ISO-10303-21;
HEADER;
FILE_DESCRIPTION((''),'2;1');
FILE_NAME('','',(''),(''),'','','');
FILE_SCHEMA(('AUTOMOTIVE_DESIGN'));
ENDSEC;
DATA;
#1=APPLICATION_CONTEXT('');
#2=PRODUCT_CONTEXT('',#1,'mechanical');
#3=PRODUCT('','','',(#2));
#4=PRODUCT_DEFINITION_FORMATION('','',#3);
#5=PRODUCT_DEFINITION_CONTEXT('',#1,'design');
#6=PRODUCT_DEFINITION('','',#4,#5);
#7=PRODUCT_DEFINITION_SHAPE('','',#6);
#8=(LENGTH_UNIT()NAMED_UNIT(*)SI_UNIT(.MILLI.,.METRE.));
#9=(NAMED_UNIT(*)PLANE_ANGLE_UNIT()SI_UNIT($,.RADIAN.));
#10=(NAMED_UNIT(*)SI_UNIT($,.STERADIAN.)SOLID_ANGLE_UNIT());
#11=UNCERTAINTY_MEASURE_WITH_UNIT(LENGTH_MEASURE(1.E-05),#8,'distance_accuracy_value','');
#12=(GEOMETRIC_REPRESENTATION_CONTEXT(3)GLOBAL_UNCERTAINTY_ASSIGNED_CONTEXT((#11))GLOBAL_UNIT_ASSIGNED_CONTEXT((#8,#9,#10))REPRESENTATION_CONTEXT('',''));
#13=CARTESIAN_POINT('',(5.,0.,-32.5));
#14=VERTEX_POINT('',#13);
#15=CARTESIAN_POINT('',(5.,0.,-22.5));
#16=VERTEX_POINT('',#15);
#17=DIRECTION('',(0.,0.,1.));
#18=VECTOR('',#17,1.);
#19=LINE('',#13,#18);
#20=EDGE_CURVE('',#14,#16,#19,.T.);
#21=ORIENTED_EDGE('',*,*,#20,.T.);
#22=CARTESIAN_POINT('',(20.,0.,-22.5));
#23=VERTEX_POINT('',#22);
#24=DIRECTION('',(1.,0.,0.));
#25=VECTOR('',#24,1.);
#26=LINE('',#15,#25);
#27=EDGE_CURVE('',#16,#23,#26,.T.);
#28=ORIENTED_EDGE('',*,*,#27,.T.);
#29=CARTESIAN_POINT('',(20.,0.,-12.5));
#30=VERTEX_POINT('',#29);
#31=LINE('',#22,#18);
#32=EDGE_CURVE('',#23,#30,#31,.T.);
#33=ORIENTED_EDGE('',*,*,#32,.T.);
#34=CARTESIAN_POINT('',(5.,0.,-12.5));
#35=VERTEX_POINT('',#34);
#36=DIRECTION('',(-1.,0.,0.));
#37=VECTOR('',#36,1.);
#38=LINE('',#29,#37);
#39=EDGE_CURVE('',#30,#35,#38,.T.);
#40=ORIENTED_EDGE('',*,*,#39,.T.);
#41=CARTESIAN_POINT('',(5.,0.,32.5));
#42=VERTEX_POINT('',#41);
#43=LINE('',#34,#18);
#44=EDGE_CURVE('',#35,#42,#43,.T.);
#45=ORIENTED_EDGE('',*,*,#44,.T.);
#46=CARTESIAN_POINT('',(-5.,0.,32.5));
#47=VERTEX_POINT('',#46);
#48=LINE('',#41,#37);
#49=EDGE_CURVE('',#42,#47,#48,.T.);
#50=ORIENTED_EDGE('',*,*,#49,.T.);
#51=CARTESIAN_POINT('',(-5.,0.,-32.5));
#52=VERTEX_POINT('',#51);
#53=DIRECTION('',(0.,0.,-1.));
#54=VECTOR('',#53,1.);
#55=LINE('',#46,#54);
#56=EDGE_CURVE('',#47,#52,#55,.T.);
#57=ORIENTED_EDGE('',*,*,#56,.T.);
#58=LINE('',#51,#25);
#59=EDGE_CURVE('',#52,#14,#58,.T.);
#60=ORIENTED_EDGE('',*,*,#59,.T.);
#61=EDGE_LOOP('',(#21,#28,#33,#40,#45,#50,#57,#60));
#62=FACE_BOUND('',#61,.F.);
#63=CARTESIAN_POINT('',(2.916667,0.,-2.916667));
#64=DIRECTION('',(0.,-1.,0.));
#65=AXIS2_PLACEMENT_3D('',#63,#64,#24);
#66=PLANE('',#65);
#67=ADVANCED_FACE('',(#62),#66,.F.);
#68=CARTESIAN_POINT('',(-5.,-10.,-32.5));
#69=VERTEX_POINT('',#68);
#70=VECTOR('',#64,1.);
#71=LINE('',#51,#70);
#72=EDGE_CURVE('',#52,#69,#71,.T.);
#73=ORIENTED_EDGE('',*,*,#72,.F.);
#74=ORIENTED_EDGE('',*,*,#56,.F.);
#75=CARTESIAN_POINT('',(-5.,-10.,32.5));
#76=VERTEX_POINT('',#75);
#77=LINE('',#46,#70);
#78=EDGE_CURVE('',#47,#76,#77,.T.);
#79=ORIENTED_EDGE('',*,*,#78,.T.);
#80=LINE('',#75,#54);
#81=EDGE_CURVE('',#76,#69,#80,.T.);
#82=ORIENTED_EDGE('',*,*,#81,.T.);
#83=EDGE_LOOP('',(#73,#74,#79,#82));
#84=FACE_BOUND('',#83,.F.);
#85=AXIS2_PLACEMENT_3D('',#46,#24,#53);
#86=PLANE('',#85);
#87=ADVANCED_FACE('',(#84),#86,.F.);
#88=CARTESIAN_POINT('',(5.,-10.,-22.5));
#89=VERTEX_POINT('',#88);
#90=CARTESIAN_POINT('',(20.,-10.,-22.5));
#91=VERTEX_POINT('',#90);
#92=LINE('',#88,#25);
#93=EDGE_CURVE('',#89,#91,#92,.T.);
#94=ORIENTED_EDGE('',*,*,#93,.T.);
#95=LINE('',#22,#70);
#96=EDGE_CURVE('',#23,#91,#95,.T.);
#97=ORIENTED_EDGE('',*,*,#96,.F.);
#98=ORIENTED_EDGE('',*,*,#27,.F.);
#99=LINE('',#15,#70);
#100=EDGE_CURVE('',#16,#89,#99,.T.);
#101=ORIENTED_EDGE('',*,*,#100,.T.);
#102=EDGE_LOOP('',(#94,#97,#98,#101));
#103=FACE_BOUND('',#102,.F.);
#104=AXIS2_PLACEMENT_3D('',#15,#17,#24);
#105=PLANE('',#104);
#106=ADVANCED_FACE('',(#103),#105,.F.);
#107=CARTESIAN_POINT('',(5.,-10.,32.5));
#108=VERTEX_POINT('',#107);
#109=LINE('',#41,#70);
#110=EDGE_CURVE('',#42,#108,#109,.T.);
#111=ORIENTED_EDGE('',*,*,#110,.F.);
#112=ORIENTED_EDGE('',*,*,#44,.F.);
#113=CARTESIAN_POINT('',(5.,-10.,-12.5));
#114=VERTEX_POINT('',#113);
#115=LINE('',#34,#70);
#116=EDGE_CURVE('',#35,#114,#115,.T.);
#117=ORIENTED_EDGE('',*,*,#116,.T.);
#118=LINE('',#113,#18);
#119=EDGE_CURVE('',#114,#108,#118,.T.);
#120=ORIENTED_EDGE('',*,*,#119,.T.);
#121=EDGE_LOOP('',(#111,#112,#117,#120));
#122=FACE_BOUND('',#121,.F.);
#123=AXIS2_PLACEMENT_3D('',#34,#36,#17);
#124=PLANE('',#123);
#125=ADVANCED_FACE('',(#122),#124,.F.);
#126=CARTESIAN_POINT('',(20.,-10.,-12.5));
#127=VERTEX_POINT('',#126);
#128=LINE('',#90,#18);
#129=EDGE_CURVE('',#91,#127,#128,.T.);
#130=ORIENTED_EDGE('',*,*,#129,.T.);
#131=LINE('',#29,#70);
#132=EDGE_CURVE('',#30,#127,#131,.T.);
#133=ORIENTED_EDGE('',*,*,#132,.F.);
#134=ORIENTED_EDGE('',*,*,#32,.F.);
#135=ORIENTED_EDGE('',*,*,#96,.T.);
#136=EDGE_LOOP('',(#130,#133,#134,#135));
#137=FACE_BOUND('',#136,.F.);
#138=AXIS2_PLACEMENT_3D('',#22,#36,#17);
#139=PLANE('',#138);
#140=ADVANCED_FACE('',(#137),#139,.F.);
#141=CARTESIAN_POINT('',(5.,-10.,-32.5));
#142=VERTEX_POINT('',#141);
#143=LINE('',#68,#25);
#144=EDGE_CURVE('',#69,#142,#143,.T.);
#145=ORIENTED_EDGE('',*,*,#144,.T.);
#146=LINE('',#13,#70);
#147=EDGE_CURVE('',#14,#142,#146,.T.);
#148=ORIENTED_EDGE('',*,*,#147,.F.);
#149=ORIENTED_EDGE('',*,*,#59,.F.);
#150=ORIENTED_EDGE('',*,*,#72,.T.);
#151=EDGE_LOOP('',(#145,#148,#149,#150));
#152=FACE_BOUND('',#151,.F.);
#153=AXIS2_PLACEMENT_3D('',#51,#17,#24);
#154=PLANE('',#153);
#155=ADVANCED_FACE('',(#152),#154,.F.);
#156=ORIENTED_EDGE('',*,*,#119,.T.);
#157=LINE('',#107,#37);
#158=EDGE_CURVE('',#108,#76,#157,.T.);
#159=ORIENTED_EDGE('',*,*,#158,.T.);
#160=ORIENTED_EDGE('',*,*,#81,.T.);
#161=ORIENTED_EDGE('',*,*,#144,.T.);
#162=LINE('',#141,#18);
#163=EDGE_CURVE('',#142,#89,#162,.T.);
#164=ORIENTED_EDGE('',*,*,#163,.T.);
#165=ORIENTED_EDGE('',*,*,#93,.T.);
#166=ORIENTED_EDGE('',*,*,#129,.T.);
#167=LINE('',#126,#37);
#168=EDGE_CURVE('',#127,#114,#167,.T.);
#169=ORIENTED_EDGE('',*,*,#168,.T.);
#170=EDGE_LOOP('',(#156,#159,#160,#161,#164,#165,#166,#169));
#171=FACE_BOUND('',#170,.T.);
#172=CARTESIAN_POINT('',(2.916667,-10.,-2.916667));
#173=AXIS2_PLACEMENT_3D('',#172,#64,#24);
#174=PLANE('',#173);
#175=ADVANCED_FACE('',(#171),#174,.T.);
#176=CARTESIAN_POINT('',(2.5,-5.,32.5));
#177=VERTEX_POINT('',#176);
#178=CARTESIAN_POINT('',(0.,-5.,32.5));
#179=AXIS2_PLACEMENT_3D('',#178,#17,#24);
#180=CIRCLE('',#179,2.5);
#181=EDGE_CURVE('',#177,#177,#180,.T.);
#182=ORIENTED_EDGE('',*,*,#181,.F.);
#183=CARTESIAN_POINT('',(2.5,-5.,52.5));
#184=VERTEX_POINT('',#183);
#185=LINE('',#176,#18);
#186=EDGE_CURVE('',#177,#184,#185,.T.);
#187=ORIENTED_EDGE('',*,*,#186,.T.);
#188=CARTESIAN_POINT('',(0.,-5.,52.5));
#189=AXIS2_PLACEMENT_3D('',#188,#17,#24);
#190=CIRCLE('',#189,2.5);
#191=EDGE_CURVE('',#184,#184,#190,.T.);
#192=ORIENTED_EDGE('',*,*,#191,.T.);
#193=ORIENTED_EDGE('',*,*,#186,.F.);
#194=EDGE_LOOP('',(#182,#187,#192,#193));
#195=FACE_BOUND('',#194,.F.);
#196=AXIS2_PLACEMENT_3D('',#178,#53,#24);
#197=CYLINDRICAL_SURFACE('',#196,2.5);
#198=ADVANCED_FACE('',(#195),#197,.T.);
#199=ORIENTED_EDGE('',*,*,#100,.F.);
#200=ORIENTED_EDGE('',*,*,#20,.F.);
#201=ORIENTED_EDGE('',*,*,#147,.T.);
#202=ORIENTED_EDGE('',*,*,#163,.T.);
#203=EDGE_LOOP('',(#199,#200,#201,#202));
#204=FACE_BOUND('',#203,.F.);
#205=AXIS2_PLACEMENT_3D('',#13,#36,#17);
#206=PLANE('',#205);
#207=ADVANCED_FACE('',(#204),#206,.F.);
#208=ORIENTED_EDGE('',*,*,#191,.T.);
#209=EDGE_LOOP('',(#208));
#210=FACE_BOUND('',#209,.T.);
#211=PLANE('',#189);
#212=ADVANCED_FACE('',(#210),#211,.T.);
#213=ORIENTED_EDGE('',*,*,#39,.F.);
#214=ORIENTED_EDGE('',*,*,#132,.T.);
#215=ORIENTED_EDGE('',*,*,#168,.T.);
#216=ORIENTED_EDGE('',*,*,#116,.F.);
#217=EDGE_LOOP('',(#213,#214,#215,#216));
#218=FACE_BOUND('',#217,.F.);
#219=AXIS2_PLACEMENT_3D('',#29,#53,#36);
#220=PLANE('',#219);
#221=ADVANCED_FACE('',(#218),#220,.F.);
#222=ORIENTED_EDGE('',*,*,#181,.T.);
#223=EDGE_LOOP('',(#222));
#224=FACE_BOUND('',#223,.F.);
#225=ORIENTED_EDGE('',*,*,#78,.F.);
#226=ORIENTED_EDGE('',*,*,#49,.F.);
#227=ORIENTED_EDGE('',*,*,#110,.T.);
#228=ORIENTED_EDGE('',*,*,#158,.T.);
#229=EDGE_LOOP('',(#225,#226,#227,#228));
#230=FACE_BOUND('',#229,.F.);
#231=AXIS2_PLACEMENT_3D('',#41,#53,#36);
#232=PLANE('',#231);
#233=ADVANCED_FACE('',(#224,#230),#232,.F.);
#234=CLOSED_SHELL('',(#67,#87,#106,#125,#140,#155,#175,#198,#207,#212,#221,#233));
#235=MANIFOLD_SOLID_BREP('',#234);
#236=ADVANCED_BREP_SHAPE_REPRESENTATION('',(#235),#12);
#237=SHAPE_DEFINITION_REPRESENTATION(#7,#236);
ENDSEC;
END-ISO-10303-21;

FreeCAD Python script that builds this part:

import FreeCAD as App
import Part
import Sketcher

doc = App.newDocument("Part")
body = doc.addObject("PartDesign::Body", "Body")

# Sketch on XZ plane
sketch1 = doc.addObject("Sketcher::SketchObject", "Sketch")
body.addObject(sketch1)
sketch1.AttachmentSupport = (doc.XZ_Plane, [""])
sketch1.MapMode = "FlatFace"
sketch1.addGeometry([
    Part.LineSegment(App.Vector(-5, -32, 0), App.Vector(5, -32, 0)),  # 0
    Part.LineSegment(App.Vector(5, -32, 0), App.Vector(5, -22, 0)),  # 1
    Part.LineSegment(App.Vector(5, -22, 0), App.Vector(20, -22, 0)),  # 2
    Part.LineSegment(App.Vector(20, -22, 0), App.Vector(20, -12, 0)),  # 3
    Part.LineSegment(App.Vector(20, -12, 0), App.Vector(5, -12, 0)),  # 4
    Part.LineSegment(App.Vector(5, -12, 0), App.Vector(5, 32, 0)),  # 5
    Part.LineSegment(App.Vector(5, 32, 0), App.Vector(-5, 32, 0)),  # 6
    Part.LineSegment(App.Vector(-5, 32, 0), App.Vector(-5, -32, 0)),  # 7
], False)
sketch1.addConstraint([
    Sketcher.Constraint("Coincident", 0, 2, 1, 1),
    Sketcher.Constraint("Coincident", 1, 2, 2, 1),
    Sketcher.Constraint("Coincident", 2, 2, 3, 1),
    Sketcher.Constraint("Coincident", 3, 2, 4, 1),
    Sketcher.Constraint("Coincident", 4, 2, 5, 1),
    Sketcher.Constraint("Coincident", 5, 2, 6, 1),
    Sketcher.Constraint("Coincident", 6, 2, 7, 1),
    Sketcher.Constraint("Coincident", 7, 2, 0, 1),
    Sketcher.Constraint("Horizontal", 0),
    Sketcher.Constraint("Vertical", 1),
    Sketcher.Constraint("Horizontal", 2),
    Sketcher.Constraint("Vertical", 3),
    Sketcher.Constraint("Horizontal", 4),
    Sketcher.Constraint("Vertical", 5),
    Sketcher.Constraint("Horizontal", 6),
    Sketcher.Constraint("Vertical", 7),
    Sketcher.Constraint("Symmetric", 0, 2, 6, 2, -1, 1),
    Sketcher.Constraint("Vertical", 1, 2, 4, 2),
    Sketcher.Constraint("Equal", 6, 1),
    Sketcher.Constraint("Equal", 1, 3),
    Sketcher.Constraint("DistanceX", 0, 1, 0, 2, 10.0),
    Sketcher.Constraint("DistanceX", 2, 1, 2, 2, 15.0),
    Sketcher.Constraint("DistanceY", 5, 1, 5, 2, 45.0),
])
pad1 = doc.addObject("PartDesign::Pad", "Pad")
body.addObject(pad1)
pad1.Profile = sketch1
pad1.Length = 10

# Sketch on XY plane
sketch2 = doc.addObject("Sketcher::SketchObject", "Sketch001")
body.addObject(sketch2)
sketch2.AttachmentSupport = (doc.XY_Plane, [""])
sketch2.MapMode = "FlatFace"
sketch2.AttachmentOffset = App.Placement(App.Vector(0, 0, 32.5), App.Rotation())
sketch2.addGeometry(Part.Circle(App.Vector(0, -5, 0), App.Vector(0, 0, 1), 2.5), False)
sketch2.addConstraint([
    Sketcher.Constraint("PointOnObject", 0, 3, -2),
    Sketcher.Constraint("Diameter", 0, 5.0),
    Sketcher.Constraint("DistanceY", 0, 3, -1, 1, 5.0),
])
pad2 = doc.addObject("PartDesign::Pad", "Pad001")
body.addObject(pad2)
pad2.Profile = sketch2
pad2.Length = 20

doc.recompute()
